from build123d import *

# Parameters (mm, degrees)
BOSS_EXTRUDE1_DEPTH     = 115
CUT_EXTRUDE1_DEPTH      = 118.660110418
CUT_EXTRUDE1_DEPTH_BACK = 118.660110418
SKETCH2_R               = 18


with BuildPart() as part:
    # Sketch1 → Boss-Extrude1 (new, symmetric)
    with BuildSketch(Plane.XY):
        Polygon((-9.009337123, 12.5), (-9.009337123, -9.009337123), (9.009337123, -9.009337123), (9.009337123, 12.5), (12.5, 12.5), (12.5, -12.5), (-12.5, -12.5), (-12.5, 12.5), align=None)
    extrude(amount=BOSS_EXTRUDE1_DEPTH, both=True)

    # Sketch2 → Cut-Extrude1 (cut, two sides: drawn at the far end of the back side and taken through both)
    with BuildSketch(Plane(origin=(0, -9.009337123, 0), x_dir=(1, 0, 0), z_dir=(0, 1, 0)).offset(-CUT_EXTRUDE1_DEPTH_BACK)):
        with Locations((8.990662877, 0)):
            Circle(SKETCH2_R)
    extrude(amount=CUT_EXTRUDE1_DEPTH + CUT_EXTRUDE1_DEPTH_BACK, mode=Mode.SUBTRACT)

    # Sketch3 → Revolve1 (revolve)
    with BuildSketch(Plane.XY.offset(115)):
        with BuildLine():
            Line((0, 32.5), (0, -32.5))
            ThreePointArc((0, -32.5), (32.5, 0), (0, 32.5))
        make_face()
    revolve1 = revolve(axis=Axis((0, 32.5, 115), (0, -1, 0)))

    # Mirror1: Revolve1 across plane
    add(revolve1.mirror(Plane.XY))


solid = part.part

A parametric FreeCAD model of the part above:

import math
import FreeCAD as App
import Part
import Sketcher

V = App.Vector
Q = App.Units.Quantity


def add_polygon(sketch, points):
    """Adds a closed chain of lines whose ends are joined by coincident constraints."""
    first, n = sketch.GeometryCount, len(points)
    for a, b in zip(points, points[1:] + points[:1]):
        sketch.addGeometry(Part.LineSegment(App.Vector(*a, 0), App.Vector(*b, 0)), False)
    for i in range(n):
        sketch.addConstraint(Sketcher.Constraint("Coincident", first + i, 2, first + (i + 1) % n, 1))

doc = App.newDocument("Part")
body = doc.addObject("PartDesign::Body", "Body")

# Sketch on XY plane
sketch1 = body.newObject("Sketcher::SketchObject", "Sketch")
sketch1.AttachmentSupport = (doc.getObject("XY_Plane"), [""])
sketch1.MapMode = "FlatFace"
add_polygon(sketch1, [(-9.009337, -9.009337), (-9.009337, 12.5), (-12.5, 12.5), (-12.5, -12.5), (12.5, -12.5), (12.5, 12.5), (9.009337, 12.5), (9.009337, -9.009337)])  # lines 0-7
sketch1.addConstraint([
    Sketcher.Constraint("Vertical", 0),
    Sketcher.Constraint("Horizontal", 1),
    Sketcher.Constraint("Vertical", 2),
    Sketcher.Constraint("Horizontal", 3),
    Sketcher.Constraint("Vertical", 4),
    Sketcher.Constraint("Horizontal", 5),
    Sketcher.Constraint("Vertical", 6),
    Sketcher.Constraint("Horizontal", 7),
    Sketcher.Constraint("Symmetric", 1, 2, 3, 2, -1, 1),
    Sketcher.Constraint("Symmetric", 0, 2, 5, 2, -2),
    Sketcher.Constraint("Equal", 3, 2),
    Sketcher.Constraint("DistanceX", 3, 1, 3, 2, Q("25 mm")),
    Sketcher.Constraint("DistanceX", 1, 2, 1, 1, Q("3.490663 mm")),
    Sketcher.Constraint("DistanceY", 0, 1, 0, 2, Q("21.509337 mm")),
])
pad1 = body.newObject("PartDesign::Pad", "Pad")
pad1.Profile = sketch1
pad1.Length = 230
pad1.Midplane = True

# Sketch on XZ plane
sketch2 = body.newObject("Sketcher::SketchObject", "Sketch001")
sketch2.AttachmentSupport = (doc.getObject("XZ_Plane"), [""])
sketch2.MapMode = "FlatFace"
sketch2.AttachmentOffset = App.Placement(V(0, 0, 9.009337), App.Rotation())
sketch2.addGeometry(Part.Circle(V(8.990663, 0, 0), V(0, 0, 1), 18), False)
sketch2.addConstraint([
    Sketcher.Constraint("PointOnObject", 0, 3, -1),
    Sketcher.Constraint("Diameter", 0, Q("36 mm")),
    Sketcher.Constraint("DistanceX", -1, 1, 0, 3, Q("8.990663 mm")),
])
pocket1 = body.newObject("PartDesign::Pocket", "Pocket")
pocket1.Profile = sketch2
pocket1.Type = "ThroughAll"
pocket1.Midplane = True

# Sketch on XY plane
sketch3 = body.newObject("Sketcher::SketchObject", "Sketch002")
sketch3.AttachmentSupport = (doc.getObject("XY_Plane"), [""])
sketch3.MapMode = "FlatFace"
sketch3.AttachmentOffset = App.Placement(V(0, 0, 115), App.Rotation())
sketch3.addGeometry([
    Part.LineSegment(V(0, 32.5, 0), V(0, -32.5, 0)),
    Part.ArcOfCircle(Part.Circle(V(0, 0, 0), V(0, 0, 1), 32.5), math.radians(-90), math.radians(90)),
], False)
sketch3.addConstraint([
    Sketcher.Constraint("Coincident", 0, 1, 1, 2),
    Sketcher.Constraint("Coincident", 1, 1, 0, 2),
    Sketcher.Constraint("Vertical", 0),
    Sketcher.Constraint("Coincident", 1, 3, -1, 1),
    Sketcher.Constraint("PointOnObject", 0, 1, -2),
    Sketcher.Constraint("Radius", 1, Q("32.5 mm")),
])
revolution = body.newObject("PartDesign::Revolution", "Revolution")
revolution.Profile = sketch3
revolution.ReferenceAxis = (sketch3, ["V_Axis"])
revolution.Angle = 360
doc.recompute()

mirrored = body.newObject("PartDesign::Mirrored", "Mirrored")
mirrored.Originals = [revolution]
mirrored.MirrorPlane = (doc.getObject("XY_Plane"), [""])
body.Tip = mirrored

doc.recompute()
